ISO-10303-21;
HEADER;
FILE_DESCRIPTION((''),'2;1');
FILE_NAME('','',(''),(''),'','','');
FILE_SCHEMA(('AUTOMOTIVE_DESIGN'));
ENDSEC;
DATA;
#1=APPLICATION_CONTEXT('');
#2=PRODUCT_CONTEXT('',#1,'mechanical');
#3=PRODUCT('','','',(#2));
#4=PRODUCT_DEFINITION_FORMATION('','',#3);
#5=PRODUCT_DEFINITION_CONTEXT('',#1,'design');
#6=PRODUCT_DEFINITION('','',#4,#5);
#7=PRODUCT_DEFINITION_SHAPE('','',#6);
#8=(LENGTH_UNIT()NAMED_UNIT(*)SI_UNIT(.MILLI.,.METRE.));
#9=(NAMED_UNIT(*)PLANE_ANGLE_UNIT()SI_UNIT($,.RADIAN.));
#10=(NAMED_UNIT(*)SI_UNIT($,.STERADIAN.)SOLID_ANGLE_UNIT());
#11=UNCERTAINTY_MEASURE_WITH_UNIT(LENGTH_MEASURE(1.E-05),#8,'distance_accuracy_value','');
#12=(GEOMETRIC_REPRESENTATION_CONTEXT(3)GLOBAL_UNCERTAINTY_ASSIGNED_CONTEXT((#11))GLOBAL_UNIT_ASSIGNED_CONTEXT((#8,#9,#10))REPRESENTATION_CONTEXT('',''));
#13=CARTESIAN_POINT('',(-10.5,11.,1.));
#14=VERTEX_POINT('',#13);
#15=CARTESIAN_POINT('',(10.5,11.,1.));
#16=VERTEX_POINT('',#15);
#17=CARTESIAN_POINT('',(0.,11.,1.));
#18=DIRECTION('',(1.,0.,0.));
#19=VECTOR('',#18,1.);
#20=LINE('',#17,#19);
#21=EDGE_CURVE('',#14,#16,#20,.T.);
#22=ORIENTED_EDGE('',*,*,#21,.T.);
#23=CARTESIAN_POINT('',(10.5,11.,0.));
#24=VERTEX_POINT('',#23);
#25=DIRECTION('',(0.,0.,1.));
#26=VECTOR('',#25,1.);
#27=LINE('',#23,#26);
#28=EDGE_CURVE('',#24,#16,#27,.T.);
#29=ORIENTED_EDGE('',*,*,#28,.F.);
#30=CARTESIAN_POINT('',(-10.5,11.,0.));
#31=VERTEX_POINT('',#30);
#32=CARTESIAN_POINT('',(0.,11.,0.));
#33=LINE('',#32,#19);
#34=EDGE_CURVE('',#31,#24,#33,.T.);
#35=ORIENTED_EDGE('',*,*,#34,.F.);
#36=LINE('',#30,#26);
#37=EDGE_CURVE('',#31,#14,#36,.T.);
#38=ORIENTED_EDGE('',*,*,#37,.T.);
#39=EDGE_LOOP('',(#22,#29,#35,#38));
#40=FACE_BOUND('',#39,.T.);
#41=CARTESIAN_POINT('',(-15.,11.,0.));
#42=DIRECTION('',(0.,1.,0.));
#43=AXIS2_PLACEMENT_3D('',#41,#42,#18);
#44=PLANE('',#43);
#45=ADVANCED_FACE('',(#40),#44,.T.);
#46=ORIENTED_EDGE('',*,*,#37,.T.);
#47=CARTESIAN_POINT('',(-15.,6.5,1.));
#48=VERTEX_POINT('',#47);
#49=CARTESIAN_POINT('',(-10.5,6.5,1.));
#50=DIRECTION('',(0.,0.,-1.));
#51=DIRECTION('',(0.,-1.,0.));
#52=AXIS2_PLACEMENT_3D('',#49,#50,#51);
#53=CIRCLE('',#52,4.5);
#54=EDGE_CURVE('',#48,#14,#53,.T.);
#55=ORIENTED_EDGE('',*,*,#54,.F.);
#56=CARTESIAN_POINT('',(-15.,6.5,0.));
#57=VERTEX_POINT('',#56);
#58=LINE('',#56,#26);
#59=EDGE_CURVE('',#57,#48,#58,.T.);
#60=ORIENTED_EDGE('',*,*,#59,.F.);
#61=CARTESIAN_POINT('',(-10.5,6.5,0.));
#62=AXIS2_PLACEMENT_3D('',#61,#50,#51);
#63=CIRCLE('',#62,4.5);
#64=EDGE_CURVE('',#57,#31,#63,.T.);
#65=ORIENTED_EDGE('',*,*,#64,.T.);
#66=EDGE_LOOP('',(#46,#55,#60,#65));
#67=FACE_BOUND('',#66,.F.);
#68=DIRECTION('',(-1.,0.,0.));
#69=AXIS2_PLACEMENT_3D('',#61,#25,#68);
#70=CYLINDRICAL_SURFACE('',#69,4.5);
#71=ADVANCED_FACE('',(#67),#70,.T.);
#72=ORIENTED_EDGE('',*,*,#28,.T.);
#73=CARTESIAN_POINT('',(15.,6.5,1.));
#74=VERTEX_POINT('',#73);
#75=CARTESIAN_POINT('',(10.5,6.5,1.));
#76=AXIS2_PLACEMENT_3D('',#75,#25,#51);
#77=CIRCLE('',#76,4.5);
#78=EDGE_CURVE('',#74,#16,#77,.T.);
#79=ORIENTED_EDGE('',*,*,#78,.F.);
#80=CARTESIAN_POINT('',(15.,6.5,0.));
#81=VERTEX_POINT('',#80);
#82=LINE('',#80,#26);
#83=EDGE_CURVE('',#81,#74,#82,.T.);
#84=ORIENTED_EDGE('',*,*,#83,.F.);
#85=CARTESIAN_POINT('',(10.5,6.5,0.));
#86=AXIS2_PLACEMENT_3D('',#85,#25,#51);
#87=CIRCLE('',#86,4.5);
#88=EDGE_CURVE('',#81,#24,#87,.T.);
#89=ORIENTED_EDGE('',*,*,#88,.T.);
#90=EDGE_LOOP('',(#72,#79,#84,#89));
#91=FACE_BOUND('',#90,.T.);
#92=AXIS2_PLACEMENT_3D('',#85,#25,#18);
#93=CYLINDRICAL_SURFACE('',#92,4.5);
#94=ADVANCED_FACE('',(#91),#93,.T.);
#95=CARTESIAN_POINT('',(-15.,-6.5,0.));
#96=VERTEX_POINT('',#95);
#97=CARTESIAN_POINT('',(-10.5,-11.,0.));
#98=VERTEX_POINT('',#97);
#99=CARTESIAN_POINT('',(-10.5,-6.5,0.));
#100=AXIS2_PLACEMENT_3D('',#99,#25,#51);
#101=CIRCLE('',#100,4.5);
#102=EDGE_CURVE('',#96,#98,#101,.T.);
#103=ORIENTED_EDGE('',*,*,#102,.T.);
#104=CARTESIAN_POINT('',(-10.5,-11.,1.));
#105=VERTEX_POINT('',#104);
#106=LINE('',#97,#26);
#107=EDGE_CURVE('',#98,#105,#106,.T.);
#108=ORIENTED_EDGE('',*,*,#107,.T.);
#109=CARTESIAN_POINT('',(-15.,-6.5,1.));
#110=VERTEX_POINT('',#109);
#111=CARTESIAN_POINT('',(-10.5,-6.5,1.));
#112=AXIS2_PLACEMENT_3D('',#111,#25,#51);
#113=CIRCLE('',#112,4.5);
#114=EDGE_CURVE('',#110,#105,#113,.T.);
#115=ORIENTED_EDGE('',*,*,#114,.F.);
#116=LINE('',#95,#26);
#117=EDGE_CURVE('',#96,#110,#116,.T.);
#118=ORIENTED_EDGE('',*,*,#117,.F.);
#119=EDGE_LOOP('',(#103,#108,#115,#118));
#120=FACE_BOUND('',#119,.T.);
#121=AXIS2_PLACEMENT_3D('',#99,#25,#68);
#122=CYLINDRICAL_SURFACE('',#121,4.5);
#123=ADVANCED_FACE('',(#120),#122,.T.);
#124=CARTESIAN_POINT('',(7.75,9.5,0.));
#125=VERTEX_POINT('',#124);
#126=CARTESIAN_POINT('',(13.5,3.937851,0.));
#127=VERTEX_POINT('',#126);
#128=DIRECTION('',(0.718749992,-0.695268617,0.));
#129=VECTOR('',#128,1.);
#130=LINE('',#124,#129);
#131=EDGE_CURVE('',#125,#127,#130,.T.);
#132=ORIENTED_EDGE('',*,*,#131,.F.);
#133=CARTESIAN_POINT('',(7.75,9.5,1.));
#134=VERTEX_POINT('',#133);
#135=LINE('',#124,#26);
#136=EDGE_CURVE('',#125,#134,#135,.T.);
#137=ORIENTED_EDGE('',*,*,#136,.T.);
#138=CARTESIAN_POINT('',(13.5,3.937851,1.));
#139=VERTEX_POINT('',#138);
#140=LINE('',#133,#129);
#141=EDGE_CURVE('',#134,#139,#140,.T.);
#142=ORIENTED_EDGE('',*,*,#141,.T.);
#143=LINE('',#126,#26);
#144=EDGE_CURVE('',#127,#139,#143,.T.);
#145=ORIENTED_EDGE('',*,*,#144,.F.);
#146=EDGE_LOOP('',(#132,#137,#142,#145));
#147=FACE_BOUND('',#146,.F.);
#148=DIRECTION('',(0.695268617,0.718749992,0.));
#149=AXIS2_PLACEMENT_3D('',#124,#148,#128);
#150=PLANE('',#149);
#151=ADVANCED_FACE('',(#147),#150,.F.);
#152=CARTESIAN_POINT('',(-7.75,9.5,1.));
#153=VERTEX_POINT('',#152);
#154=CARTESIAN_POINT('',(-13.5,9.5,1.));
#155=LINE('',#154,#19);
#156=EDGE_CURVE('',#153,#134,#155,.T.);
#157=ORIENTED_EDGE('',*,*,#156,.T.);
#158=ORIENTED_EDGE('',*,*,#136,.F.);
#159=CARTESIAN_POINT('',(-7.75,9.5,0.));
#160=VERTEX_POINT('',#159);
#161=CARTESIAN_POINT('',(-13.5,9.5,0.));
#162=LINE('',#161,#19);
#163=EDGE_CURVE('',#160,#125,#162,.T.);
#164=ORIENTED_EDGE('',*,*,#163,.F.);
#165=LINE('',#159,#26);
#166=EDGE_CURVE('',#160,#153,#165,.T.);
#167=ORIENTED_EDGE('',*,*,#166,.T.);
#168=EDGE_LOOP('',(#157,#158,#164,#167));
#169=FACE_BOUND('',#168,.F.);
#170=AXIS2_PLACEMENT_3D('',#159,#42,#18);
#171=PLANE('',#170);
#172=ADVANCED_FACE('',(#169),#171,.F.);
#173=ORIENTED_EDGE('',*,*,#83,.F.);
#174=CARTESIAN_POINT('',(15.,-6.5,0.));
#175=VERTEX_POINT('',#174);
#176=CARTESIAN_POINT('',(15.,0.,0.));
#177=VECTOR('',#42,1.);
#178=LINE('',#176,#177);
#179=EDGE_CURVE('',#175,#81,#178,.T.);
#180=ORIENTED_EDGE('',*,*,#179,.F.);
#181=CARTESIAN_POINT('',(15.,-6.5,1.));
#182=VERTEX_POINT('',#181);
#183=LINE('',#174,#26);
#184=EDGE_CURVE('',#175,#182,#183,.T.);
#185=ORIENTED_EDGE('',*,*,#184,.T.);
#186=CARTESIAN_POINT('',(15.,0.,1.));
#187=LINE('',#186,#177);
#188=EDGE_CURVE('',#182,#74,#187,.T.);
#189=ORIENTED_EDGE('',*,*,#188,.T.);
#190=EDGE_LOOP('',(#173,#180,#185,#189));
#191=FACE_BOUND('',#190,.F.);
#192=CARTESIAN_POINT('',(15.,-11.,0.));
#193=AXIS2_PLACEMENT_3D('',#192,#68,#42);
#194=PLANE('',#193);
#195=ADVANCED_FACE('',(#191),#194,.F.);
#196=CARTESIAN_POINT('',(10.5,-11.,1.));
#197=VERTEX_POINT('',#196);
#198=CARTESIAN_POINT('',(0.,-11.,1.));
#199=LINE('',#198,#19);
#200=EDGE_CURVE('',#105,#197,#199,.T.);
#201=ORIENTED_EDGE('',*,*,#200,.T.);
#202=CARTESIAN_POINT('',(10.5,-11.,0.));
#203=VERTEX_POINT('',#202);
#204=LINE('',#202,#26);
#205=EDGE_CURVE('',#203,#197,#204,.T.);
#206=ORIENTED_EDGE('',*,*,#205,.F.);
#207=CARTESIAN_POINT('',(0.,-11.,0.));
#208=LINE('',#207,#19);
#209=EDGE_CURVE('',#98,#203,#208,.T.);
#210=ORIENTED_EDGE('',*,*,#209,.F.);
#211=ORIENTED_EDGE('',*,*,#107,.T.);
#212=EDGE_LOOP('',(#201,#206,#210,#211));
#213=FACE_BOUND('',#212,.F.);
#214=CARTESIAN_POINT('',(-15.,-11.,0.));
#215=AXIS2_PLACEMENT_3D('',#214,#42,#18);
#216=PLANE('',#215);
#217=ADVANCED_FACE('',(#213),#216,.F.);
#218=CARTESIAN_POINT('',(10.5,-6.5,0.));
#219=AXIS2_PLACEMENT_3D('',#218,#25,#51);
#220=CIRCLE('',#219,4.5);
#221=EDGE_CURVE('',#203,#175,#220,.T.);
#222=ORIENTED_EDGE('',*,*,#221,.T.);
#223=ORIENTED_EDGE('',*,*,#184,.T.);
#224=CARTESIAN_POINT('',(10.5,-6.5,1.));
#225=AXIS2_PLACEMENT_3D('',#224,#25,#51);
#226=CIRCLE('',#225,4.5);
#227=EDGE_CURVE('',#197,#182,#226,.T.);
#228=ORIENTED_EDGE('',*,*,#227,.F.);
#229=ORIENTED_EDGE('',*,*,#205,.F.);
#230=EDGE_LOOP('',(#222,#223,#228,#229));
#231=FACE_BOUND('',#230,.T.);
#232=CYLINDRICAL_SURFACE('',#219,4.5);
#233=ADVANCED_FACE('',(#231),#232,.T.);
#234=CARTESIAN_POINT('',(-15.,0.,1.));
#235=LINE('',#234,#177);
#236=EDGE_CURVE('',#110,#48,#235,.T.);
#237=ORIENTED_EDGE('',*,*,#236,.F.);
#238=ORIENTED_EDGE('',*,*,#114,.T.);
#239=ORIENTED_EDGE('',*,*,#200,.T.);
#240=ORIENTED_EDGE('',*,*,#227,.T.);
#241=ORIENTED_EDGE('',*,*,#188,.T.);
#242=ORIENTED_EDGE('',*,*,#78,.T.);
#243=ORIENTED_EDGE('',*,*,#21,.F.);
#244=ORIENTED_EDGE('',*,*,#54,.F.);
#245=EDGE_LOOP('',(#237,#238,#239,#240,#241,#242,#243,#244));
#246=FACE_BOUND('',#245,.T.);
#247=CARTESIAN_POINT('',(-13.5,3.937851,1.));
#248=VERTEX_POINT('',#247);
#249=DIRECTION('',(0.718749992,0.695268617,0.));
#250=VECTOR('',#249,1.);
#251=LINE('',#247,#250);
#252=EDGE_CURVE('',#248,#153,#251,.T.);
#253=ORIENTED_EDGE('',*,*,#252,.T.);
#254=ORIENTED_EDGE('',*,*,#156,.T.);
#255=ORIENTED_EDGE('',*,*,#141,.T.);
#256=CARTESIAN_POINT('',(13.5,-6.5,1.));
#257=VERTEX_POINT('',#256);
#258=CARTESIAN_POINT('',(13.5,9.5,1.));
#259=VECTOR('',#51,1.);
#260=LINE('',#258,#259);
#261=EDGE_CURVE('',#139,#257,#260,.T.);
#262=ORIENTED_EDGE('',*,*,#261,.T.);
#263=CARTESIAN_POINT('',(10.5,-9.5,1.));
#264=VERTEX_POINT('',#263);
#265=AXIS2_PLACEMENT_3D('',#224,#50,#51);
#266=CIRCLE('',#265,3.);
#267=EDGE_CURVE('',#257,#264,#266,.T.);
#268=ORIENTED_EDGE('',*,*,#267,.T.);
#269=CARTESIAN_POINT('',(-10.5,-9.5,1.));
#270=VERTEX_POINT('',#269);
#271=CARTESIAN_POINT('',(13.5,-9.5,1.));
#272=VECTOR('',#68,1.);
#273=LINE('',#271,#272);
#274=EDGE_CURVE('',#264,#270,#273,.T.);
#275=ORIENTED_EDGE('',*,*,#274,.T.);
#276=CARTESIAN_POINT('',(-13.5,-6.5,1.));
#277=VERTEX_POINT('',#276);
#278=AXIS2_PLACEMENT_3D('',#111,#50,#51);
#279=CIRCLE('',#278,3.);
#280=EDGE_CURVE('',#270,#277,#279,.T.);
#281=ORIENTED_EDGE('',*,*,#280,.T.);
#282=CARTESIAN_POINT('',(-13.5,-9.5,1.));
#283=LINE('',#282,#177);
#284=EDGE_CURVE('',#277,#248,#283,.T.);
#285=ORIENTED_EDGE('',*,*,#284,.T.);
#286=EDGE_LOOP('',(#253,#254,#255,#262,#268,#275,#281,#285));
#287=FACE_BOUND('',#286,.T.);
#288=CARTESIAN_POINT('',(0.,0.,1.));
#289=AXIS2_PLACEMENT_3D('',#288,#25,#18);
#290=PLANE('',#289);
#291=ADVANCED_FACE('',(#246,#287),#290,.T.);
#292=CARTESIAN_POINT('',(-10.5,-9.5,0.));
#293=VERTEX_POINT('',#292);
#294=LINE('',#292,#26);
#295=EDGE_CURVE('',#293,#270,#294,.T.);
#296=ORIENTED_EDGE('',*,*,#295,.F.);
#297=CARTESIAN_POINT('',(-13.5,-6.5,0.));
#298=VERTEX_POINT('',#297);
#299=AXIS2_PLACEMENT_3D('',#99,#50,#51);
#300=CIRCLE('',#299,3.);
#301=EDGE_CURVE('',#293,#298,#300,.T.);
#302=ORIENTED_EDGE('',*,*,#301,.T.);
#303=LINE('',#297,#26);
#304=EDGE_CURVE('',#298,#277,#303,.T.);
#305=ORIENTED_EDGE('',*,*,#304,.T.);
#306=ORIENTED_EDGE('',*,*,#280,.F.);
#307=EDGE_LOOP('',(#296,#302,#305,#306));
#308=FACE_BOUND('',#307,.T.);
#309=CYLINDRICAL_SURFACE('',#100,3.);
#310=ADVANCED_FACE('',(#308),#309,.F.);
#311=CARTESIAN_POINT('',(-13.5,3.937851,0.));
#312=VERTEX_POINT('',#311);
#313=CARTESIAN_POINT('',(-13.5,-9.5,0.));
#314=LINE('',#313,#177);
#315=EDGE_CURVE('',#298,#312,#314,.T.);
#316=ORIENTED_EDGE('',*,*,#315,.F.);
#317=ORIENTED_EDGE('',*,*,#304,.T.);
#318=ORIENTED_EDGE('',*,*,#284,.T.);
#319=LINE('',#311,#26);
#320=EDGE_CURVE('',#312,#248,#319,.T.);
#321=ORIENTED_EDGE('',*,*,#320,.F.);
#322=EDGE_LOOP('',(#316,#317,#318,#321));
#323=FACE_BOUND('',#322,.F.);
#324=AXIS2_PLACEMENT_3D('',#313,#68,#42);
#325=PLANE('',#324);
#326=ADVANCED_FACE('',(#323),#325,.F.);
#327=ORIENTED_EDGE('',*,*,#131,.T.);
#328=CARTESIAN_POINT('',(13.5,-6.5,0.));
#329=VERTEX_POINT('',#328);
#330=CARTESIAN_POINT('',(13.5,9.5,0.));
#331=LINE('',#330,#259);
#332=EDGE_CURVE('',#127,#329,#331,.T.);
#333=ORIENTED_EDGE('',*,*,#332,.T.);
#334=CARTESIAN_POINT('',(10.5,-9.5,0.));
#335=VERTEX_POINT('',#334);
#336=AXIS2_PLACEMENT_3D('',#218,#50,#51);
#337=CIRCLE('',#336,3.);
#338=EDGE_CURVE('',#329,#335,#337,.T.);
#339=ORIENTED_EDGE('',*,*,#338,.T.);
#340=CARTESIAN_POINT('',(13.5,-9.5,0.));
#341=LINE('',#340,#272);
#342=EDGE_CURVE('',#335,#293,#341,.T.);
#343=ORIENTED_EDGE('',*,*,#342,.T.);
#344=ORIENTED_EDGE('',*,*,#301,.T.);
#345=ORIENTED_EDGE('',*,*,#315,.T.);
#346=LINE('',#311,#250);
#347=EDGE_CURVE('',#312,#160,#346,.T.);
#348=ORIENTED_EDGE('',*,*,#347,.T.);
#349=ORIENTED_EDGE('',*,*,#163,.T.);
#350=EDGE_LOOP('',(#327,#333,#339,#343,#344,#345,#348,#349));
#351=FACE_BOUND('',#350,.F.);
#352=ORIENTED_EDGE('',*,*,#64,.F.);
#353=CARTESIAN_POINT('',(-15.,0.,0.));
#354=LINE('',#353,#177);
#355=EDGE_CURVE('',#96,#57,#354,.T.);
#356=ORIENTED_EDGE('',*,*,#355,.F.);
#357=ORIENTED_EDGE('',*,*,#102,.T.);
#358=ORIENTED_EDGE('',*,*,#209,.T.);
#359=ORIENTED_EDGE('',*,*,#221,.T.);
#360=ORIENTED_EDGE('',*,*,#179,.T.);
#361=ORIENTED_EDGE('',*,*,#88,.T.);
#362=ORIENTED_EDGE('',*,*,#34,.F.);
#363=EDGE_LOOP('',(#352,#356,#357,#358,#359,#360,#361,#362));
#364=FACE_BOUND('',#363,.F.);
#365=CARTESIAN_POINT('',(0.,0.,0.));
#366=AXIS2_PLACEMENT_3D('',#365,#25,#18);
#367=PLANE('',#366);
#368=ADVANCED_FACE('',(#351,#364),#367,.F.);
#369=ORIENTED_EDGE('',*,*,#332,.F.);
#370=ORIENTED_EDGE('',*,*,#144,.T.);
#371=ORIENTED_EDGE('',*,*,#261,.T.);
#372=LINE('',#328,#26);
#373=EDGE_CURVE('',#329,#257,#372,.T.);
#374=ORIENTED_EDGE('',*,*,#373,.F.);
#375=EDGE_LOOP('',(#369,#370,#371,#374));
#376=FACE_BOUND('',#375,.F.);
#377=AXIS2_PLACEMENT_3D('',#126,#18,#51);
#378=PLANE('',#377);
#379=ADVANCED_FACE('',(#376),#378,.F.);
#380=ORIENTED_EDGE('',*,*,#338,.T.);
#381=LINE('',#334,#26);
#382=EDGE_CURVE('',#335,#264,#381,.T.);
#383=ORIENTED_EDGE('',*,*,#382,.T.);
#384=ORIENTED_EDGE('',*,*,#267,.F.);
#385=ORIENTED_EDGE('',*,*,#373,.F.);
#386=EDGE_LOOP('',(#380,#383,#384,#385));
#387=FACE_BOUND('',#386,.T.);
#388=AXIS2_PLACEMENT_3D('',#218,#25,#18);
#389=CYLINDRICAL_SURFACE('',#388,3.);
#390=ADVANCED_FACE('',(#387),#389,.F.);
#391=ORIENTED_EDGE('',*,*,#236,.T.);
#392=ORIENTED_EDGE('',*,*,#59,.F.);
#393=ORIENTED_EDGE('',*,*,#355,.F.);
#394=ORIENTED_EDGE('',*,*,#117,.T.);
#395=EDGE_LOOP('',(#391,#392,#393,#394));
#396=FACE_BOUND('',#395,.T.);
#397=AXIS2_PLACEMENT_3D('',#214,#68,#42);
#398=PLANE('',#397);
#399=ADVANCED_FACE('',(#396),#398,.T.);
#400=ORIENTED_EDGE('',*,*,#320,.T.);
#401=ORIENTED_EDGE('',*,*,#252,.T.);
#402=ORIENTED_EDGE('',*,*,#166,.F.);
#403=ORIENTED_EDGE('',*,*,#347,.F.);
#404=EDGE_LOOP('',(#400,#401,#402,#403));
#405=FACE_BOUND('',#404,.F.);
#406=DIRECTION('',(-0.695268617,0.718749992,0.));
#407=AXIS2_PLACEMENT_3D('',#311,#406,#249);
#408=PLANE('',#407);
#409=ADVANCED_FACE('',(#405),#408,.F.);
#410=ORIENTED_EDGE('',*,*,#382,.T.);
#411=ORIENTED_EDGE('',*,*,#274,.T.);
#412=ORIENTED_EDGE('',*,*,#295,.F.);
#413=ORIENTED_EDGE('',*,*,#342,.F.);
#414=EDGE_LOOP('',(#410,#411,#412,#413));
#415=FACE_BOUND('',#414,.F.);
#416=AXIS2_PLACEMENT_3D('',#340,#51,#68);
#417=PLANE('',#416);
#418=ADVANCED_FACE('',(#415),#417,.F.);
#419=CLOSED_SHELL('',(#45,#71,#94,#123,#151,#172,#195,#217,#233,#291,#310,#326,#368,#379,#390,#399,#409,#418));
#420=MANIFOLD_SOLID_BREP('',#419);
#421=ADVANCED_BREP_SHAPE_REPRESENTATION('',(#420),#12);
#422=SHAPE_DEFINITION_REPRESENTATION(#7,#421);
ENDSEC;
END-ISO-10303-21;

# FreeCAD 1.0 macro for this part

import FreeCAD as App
import Part
import Sketcher
from FreeCAD import Vector


def edges_at(feature, points):
    """Names of the edges that pass closest to the given points."""
    edges = feature.Shape.Edges
    near = lambda p: min(range(len(edges)), key=lambda i: edges[i].distToShape(Part.Vertex(*p))[0])
    return sorted({f"Edge{near(p) + 1}" for p in points})

doc = App.newDocument("Part")
body = doc.addObject("PartDesign::Body", "Body")

# Sketch on XY plane
sketch1 = body.newObject("Sketcher::SketchObject", "Sketch")
sketch1.AttachmentSupport = (doc.getObject("XY_Plane"), [""])
sketch1.MapMode = "FlatFace"
sketch1.addGeometry([
    Part.LineSegment(Vector(-15, 11, 0), Vector(-15, -11, 0)),  # 0
    Part.LineSegment(Vector(-15, -11, 0), Vector(15, -11, 0)),  # 1
    Part.LineSegment(Vector(15, -11, 0), Vector(15, 11, 0)),  # 2
    Part.LineSegment(Vector(15, 11, 0), Vector(-15, 11, 0)),  # 3
    Part.LineSegment(Vector(-8, 10, 0), Vector(8, 10, 0)),  # 4
    Part.LineSegment(Vector(8, 10, 0), Vector(14, 4, 0)),  # 5
    Part.LineSegment(Vector(14, 4, 0), Vector(14, -10, 0)),  # 6
    Part.LineSegment(Vector(14, -10, 0), Vector(-14, -10, 0)),  # 7
    Part.LineSegment(Vector(-14, -10, 0), Vector(-14, 4, 0)),  # 8
    Part.LineSegment(Vector(-14, 4, 0), Vector(-8, 10, 0)),  # 9
], False)
sketch1.addConstraint([
    Sketcher.Constraint("Coincident", 0, 2, 1, 1),
    Sketcher.Constraint("Coincident", 1, 2, 2, 1),
    Sketcher.Constraint("Coincident", 2, 2, 3, 1),
    Sketcher.Constraint("Coincident", 3, 2, 0, 1),
    Sketcher.Constraint("Coincident", 4, 2, 5, 1),
    Sketcher.Constraint("Coincident", 5, 2, 6, 1),
    Sketcher.Constraint("Coincident", 6, 2, 7, 1),
    Sketcher.Constraint("Coincident", 7, 2, 8, 1),
    Sketcher.Constraint("Coincident", 8, 2, 9, 1),
    Sketcher.Constraint("Coincident", 9, 2, 4, 1),
    Sketcher.Constraint("Vertical", 0),
    Sketcher.Constraint("Horizontal", 1),
    Sketcher.Constraint("Vertical", 2),
    Sketcher.Constraint("Horizontal", 3),
    Sketcher.Constraint("Horizontal", 4),
    Sketcher.Constraint("Vertical", 6),
    Sketcher.Constraint("Horizontal", 7),
    Sketcher.Constraint("Vertical", 8),
    Sketcher.Constraint("Symmetric", 0, 2, 2, 2, -1, 1),
    Sketcher.Constraint("Symmetric", 5, 2, 8, 2, -2),
    Sketcher.Constraint("Equal", 5, 9),
    Sketcher.Constraint("DistanceX", 1, 1, 1, 2, 30.0),
    Sketcher.Constraint("DistanceX", 7, 2, 7, 1, 27.0),
    Sketcher.Constraint("DistanceY", 0, 2, 0, 1, 22.0),
    Sketcher.Constraint("Distance", 5, 8.0),
    Sketcher.Constraint("DistanceX", 4, 1, 4, 2, 15.5),
    Sketcher.Constraint("DistanceY", 6, 2, 4, 2, 19.0),
    Sketcher.Constraint("DistanceY", -1, 1, 4, 2, 9.5),
])
pad1 = body.newObject("PartDesign::Pad", "Pad")
pad1.Profile = sketch1
pad1.Length = 1
doc.recompute()

fillet = body.newObject("PartDesign::Fillet", "Fillet")
fillet.Base = (pad1, edges_at(pad1, [(13.5, -9.5, 0.5), (-13.5, -9.5, 0.5)]))
fillet.Radius = 3
doc.recompute()

fillet2 = body.newObject("PartDesign::Fillet", "Fillet001")
fillet2.Base = (fillet, edges_at(fillet, [
    (15, -11, 0.5),
    (15, 11, 0.5),
    (-15, -11, 0.5),
    (-15, 11, 0.5),
]))
fillet2.Radius = 4.5

doc.recompute()
